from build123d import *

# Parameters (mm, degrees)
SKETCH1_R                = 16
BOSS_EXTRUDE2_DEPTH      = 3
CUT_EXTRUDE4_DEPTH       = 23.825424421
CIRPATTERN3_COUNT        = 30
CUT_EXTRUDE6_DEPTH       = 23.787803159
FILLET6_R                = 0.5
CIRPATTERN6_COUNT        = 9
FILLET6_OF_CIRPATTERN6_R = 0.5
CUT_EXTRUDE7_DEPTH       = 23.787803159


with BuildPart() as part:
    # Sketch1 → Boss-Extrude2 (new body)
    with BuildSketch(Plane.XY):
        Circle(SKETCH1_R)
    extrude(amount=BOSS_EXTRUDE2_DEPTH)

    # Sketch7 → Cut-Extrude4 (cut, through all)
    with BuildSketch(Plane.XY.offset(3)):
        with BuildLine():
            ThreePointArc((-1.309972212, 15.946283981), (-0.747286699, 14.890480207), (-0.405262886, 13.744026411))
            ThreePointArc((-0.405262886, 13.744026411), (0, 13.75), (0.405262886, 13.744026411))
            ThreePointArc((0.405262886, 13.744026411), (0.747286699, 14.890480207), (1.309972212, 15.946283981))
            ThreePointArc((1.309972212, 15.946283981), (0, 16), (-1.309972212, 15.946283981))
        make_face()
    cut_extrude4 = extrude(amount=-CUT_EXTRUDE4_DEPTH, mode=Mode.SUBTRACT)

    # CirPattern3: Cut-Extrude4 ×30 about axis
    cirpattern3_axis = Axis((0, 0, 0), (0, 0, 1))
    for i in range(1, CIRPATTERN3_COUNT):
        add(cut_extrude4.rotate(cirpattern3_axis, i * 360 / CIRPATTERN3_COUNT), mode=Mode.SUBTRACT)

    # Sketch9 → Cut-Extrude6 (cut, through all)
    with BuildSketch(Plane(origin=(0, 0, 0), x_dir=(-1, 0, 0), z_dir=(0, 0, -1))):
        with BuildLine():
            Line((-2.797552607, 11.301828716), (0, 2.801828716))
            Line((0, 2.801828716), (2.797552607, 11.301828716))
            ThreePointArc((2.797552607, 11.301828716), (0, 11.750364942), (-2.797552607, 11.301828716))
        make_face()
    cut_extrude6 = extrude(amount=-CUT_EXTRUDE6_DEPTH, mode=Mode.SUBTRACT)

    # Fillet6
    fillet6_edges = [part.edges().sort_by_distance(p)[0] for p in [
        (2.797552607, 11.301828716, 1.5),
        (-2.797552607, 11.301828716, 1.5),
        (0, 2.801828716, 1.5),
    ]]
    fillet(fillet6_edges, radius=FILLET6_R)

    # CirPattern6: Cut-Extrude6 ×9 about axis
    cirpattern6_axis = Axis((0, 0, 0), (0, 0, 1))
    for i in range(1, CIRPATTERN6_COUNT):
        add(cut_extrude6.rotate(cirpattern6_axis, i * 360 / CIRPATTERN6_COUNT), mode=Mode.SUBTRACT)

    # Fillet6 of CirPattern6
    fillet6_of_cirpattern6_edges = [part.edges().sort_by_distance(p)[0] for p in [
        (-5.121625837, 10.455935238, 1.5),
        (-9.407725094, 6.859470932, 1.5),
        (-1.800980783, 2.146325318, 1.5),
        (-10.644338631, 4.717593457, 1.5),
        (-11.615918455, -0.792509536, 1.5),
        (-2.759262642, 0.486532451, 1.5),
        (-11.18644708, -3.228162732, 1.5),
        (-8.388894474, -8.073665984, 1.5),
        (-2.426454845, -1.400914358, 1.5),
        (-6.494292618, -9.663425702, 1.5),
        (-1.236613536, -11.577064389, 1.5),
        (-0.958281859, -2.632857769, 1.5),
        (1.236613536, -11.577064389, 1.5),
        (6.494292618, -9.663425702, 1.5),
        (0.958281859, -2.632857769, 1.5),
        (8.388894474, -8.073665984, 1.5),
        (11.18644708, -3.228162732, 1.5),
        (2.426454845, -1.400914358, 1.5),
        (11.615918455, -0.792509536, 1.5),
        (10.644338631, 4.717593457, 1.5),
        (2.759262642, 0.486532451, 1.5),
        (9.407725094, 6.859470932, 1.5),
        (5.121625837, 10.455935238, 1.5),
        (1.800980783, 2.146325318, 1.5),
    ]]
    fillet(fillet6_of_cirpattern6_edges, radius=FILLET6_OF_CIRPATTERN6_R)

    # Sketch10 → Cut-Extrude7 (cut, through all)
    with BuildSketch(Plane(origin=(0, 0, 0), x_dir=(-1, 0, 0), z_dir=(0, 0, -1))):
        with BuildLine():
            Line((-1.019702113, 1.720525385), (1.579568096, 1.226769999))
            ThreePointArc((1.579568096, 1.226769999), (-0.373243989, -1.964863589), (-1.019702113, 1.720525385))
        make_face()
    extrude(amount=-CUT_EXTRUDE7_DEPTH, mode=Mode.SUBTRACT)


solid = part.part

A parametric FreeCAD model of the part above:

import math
import FreeCAD as App
import Part
import Sketcher
from FreeCAD import Vector


def edges_at(feature, points):
    """Names of the edges that pass closest to the given points."""
    edges = feature.Shape.Edges
    near = lambda p: min(range(len(edges)), key=lambda i: edges[i].distToShape(Part.Vertex(*p))[0])
    return sorted({f"Edge{near(p) + 1}" for p in points})

doc = App.newDocument("Part")
body = doc.addObject("PartDesign::Body", "Body")

# Sketch on XY plane
sketch1 = doc.addObject("Sketcher::SketchObject", "Sketch")
body.addObject(sketch1)
sketch1.AttachmentSupport = (doc.XY_Plane, [""])
sketch1.MapMode = "FlatFace"
sketch1.addGeometry(Part.Circle(Vector(0, 0, 0), Vector(0, 0, 1), 16), False)
sketch1.addConstraint([
    Sketcher.Constraint("Coincident", 0, 3, -1, 1),
    Sketcher.Constraint("Diameter", 0, 32.0),
])
pad1 = doc.addObject("PartDesign::Pad", "Pad")
body.addObject(pad1)
pad1.Profile = sketch1
pad1.Length = 3

# Sketch on XY plane
sketch2 = doc.addObject("Sketcher::SketchObject", "Sketch001")
body.addObject(sketch2)
sketch2.AttachmentSupport = (doc.XY_Plane, [""])
sketch2.MapMode = "FlatFace"
sketch2.AttachmentOffset = App.Placement(Vector(0, 0, 3), App.Rotation())
sketch2.addGeometry([
    Part.ArcOfCircle(Part.Circle(Vector(-6.297219, 12.610513, 0), Vector(0, 0, 1), 6), math.radians(10.889701), math.radians(33.776991)),
    Part.ArcOfCircle(Part.Circle(Vector(0, 0.000001, 0), Vector(0, 0, 1), 13.749999), math.radians(88.311039), math.radians(91.688961)),
    Part.ArcOfCircle(Part.Circle(Vector(6.297219, 12.610513, 0), Vector(0, 0, 1), 6), math.radians(146.223009), math.radians(169.110299)),
    Part.ArcOfCircle(Part.Circle(Vector(0, 0, 0), Vector(0, 0, 1), 16), math.radians(85.303751), math.radians(94.696249)),
], False)
sketch2.addConstraint([
    Sketcher.Constraint("Coincident", 0, 1, 1, 2),
    Sketcher.Constraint("Coincident", 1, 1, 2, 2),
    Sketcher.Constraint("Coincident", 2, 1, 3, 1),
    Sketcher.Constraint("Coincident", 3, 2, 0, 2),
    Sketcher.Constraint("Coincident", 1, 3, -1, 1),
    Sketcher.Constraint("Coincident", 3, 3, -1, 1),
    Sketcher.Constraint("Equal", 0, 2),
    Sketcher.Constraint("Symmetric", 0, 3, 2, 3, -2),
    Sketcher.Constraint("Radius", 0, 6.0),
    Sketcher.Constraint("Radius", 3, 16.0),
    Sketcher.Constraint("Radius", 1, 13.749999),
    Sketcher.Constraint("DistanceX", 0, 3, -1, 1, 6.297219),
    Sketcher.Constraint("DistanceX", 0, 1, 2, 3, 6.702482),
])
pocket1 = doc.addObject("PartDesign::Pocket", "Pocket")
body.addObject(pocket1)
pocket1.Profile = sketch2
pocket1.Type = "ThroughAll"
doc.recompute()

polarpattern = doc.addObject("PartDesign::PolarPattern", "PolarPattern")
body.addObject(polarpattern)
polarpattern.Originals = [pocket1]
polarpattern.Axis = (doc.Z_Axis, [""])
polarpattern.Angle = 360
polarpattern.Occurrences = 30
body.Tip = polarpattern

# Sketch on XY plane
sketch3 = doc.addObject("Sketcher::SketchObject", "Sketch002")
body.addObject(sketch3)
sketch3.AttachmentSupport = (doc.XY_Plane, [""])
sketch3.MapMode = "FlatFace"
sketch3.addGeometry([
    Part.LineSegment(Vector(2.797553, 11.301829, 0), Vector(0, 2.801829, 0)),
    Part.LineSegment(Vector(0, 2.801829, 0), Vector(-2.797553, 11.301829, 0)),
    Part.ArcOfCircle(Part.Circle(Vector(0, 2.801829, 0), Vector(0, 0, 1), 8.948536), math.radians(71.782392), math.radians(108.217608)),
], False)
sketch3.addConstraint([
    Sketcher.Constraint("Coincident", 0, 2, 1, 1),
    Sketcher.Constraint("Coincident", 1, 2, 2, 2),
    Sketcher.Constraint("Coincident", 2, 1, 0, 1),
    Sketcher.Constraint("Coincident", 0, 2, 2, 3),
    Sketcher.Constraint("Symmetric", 1, 2, 2, 1, -2),
    Sketcher.Constraint("DistanceY", 0, 2, 1, 2, 8.5),
    Sketcher.Constraint("Radius", 2, 8.948536),
    Sketcher.Constraint("DistanceY", -1, 1, 2, 3, 2.801829),
])
pocket2 = doc.addObject("PartDesign::Pocket", "Pocket001")
body.addObject(pocket2)
pocket2.Profile = sketch3
pocket2.Type = "ThroughAll"
pocket2.Reversed = True
doc.recompute()

fillet = doc.addObject("PartDesign::Fillet", "Fillet")
body.addObject(fillet)
fillet.Base = (pocket2, edges_at(pocket2, [(2.798, 11.302, 1.5), (-2.798, 11.302, 1.5), (0, 2.802, 1.5)]))
fillet.Radius = 0.5
doc.recompute()

polarpattern2 = doc.addObject("PartDesign::PolarPattern", "PolarPattern001")
body.addObject(polarpattern2)
polarpattern2.Originals = [pocket2]
polarpattern2.Axis = (doc.Z_Axis, [""])
polarpattern2.Angle = 360
polarpattern2.Occurrences = 9
body.Tip = polarpattern2
doc.recompute()

fillet2 = doc.addObject("PartDesign::Fillet", "Fillet001")
body.addObject(fillet2)
fillet2.Base = (polarpattern2, edges_at(polarpattern2, [
    (-5.122, 10.456, 1.5),
    (-9.408, 6.859, 1.5),
    (-1.801, 2.146, 1.5),
    (-10.644, 4.718, 1.5),
    (-11.616, -0.793, 1.5),
    (-2.759, 0.487, 1.5),
    (-11.186, -3.228, 1.5),
    (-8.389, -8.074, 1.5),
    (-2.426, -1.401, 1.5),
    (-6.494, -9.663, 1.5),
    (-1.237, -11.577, 1.5),
    (-0.958, -2.633, 1.5),
    (1.237, -11.577, 1.5),
    (6.494, -9.663, 1.5),
    (0.958, -2.633, 1.5),
    (8.389, -8.074, 1.5),
    (11.186, -3.228, 1.5),
    (2.426, -1.401, 1.5),
    (11.616, -0.793, 1.5),
    (10.644, 4.718, 1.5),
    (2.759, 0.487, 1.5),
    (9.408, 6.859, 1.5),
    (5.122, 10.456, 1.5),
    (1.801, 2.146, 1.5),
]))
fillet2.Radius = 0.5

# Sketch on XY plane
sketch4 = doc.addObject("Sketcher::SketchObject", "Sketch003")
body.addObject(sketch4)
sketch4.AttachmentSupport = (doc.XY_Plane, [""])
sketch4.MapMode = "FlatFace"
sketch4.addGeometry([
    Part.LineSegment(Vector(-1.579568, 1.22677, 0), Vector(1.019702, 1.720525, 0)),
    Part.ArcOfCircle(Part.Circle(Vector(0, 0, 0), Vector(0, 0, 1), 2), math.radians(142.165335), math.radians(419.346091)),
], False)
sketch4.addConstraint([
    Sketcher.Constraint("Coincident", 0, 1, 1, 1),
    Sketcher.Constraint("Coincident", 1, 2, 0, 2),
    Sketcher.Constraint("Coincident", 1, 3, -1, 1),
    Sketcher.Constraint("Radius", 1, 2.0),
    Sketcher.Constraint("Distance", 0, 2.645751),
    Sketcher.Constraint("DistanceX", 0, 1, -1, 1, 1.579568),
])
pocket3 = doc.addObject("PartDesign::Pocket", "Pocket002")
body.addObject(pocket3)
pocket3.Profile = sketch4
pocket3.Type = "ThroughAll"
pocket3.Reversed = True

doc.recompute()
